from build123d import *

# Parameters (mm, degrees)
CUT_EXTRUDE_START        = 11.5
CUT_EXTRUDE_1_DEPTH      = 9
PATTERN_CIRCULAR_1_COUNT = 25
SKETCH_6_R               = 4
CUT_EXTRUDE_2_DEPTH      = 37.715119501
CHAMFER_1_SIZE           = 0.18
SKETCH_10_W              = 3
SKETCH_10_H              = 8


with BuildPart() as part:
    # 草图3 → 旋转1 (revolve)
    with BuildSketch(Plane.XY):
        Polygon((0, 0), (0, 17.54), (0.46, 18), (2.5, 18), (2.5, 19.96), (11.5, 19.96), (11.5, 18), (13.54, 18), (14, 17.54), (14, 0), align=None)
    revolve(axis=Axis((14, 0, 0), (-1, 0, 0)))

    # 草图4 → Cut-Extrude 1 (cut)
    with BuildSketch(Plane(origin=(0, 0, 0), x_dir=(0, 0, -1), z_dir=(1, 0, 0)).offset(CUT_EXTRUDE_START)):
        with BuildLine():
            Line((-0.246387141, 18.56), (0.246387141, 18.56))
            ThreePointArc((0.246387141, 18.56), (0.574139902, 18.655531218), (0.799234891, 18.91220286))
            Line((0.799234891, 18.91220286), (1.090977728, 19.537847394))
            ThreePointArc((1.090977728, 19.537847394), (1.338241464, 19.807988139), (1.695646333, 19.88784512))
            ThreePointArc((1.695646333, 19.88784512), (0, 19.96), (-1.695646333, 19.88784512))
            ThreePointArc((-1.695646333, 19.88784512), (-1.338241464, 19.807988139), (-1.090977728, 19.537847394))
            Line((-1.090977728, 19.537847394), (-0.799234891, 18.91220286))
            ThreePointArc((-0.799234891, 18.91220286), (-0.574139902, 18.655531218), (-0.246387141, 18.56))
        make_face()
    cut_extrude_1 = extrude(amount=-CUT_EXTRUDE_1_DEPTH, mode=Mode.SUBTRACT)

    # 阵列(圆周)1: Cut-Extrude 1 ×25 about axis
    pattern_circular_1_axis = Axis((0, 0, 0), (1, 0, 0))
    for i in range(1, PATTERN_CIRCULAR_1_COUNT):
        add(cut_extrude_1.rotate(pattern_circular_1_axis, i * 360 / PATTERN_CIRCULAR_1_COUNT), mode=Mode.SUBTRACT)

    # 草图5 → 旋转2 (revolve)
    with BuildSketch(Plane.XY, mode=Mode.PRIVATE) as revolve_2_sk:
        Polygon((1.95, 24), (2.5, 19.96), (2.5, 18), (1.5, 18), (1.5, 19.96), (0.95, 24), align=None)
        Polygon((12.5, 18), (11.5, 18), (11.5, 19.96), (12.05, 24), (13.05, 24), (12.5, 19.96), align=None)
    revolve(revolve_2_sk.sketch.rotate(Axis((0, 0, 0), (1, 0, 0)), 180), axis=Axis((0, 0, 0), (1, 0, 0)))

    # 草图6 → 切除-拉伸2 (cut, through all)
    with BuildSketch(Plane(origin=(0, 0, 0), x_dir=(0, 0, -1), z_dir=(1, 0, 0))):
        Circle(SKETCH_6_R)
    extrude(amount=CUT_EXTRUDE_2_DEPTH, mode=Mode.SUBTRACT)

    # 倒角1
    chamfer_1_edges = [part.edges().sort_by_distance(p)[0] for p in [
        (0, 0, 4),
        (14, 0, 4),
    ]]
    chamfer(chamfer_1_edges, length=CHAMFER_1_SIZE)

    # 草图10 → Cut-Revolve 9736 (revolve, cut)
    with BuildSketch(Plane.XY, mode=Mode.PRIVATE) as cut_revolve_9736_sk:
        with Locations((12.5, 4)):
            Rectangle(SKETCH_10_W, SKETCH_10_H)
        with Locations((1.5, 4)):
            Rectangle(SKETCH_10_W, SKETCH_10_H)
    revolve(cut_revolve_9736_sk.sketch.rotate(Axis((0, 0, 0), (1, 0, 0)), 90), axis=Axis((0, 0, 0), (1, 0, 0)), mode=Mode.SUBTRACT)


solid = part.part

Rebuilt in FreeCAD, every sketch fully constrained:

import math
import FreeCAD as App
import Part
import Sketcher
Q = App.Units.Quantity


def edges_at(feature, points):
    """Names of the edges that pass closest to the given points."""
    edges = feature.Shape.Edges
    near = lambda p: min(range(len(edges)), key=lambda i: edges[i].distToShape(Part.Vertex(*p))[0])
    return sorted({f"Edge{near(p) + 1}" for p in points})

doc = App.newDocument("Part")
params = doc.addObject("Spreadsheet::Sheet", "Params")
for row, (alias, value) in enumerate([
    ("sketch1_width", "14 mm"),
    ("sketch1_width2", "9 mm"),
    ("sketch1_width3", "2.04 mm"),
    ("sketch1_height", "1.96 mm"),
    ("revolution_angle", "360 deg"),
    ("sketch2_radius", "0.61 mm"),
    ("sketch2_radius2", "19.96 mm"),
    ("pocket1_length", "9 mm"),
    ("sketch3_width", "1 mm"),
    ("sketch3_height", "1.96 mm"),
    ("revolution2_angle", "360 deg"),
    ("sketch4_diameter", "8 mm"),
    ("chamfer_size", "0.18 mm"),
    ("sketch5_width", "3 mm"),
    ("sketch5_height", "8 mm"),
    ("groove_angle", "360 deg"),
], start=1):
    params.set(f"A{row}", alias)
    params.set(f"B{row}", "=" + value)
    params.setAlias(f"B{row}", alias)

body = doc.addObject("PartDesign::Body", "Body")

sketch1 = doc.addObject("Sketcher::SketchObject", "Sketch")
body.addObject(sketch1)
sketch1.AttachmentSupport = (doc.XY_Plane, [""])
sketch1.MapMode = "FlatFace"
sketch1.addGeometry([
    Part.LineSegment(App.Vector(0, 17.5, 0), App.Vector(0, 0, 0)),
    Part.LineSegment(App.Vector(0, 0, 0), App.Vector(14, 0, 0)),
    Part.LineSegment(App.Vector(14, 0, 0), App.Vector(14, 17.5, 0)),
    Part.LineSegment(App.Vector(14, 17.5, 0), App.Vector(13.5, 18, 0)),
    Part.LineSegment(App.Vector(13.5, 18, 0), App.Vector(11.5, 18, 0)),
    Part.LineSegment(App.Vector(11.5, 18, 0), App.Vector(11.5, 20, 0)),
    Part.LineSegment(App.Vector(11.5, 20, 0), App.Vector(2.5, 20, 0)),
    Part.LineSegment(App.Vector(2.5, 20, 0), App.Vector(2.5, 18, 0)),
    Part.LineSegment(App.Vector(2.5, 18, 0), App.Vector(0.5, 18, 0)),
    Part.LineSegment(App.Vector(0.5, 18, 0), App.Vector(0, 17.5, 0)),
], False)
sketch1.addConstraint([
    Sketcher.Constraint("Coincident", 0, 2, 1, 1),
    Sketcher.Constraint("Coincident", 1, 2, 2, 1),
    Sketcher.Constraint("Coincident", 2, 2, 3, 1),
    Sketcher.Constraint("Coincident", 3, 2, 4, 1),
    Sketcher.Constraint("Coincident", 4, 2, 5, 1),
    Sketcher.Constraint("Coincident", 5, 2, 6, 1),
    Sketcher.Constraint("Coincident", 6, 2, 7, 1),
    Sketcher.Constraint("Coincident", 7, 2, 8, 1),
    Sketcher.Constraint("Coincident", 8, 2, 9, 1),
    Sketcher.Constraint("Coincident", 9, 2, 0, 1),
    Sketcher.Constraint("Vertical", 0),
    Sketcher.Constraint("Horizontal", 1),
    Sketcher.Constraint("Vertical", 2),
    Sketcher.Constraint("Horizontal", 4),
    Sketcher.Constraint("Vertical", 5),
    Sketcher.Constraint("Horizontal", 6),
    Sketcher.Constraint("Vertical", 7),
    Sketcher.Constraint("Horizontal", 8),
    Sketcher.Constraint("Coincident", 0, 2, -1, 1),
    Sketcher.Constraint("Perpendicular", 3, 9),
    Sketcher.Constraint("Horizontal", 4, 2, 7, 2),
    Sketcher.Constraint("Horizontal", 2, 2, 9, 2),
    Sketcher.Constraint("Equal", 4, 8),
    Sketcher.Constraint("Equal", 3, 9),
    Sketcher.Constraint("DistanceX", 1, 1, 1, 2, Q("14 mm")),
    Sketcher.Constraint("DistanceX", 6, 2, 6, 1, Q("9 mm")),
    Sketcher.Constraint("DistanceY", -1, 1, 3, 2, Q("18 mm")),
    Sketcher.Constraint("DistanceX", 4, 2, 4, 1, Q("2.04 mm")),
    Sketcher.Constraint("DistanceY", 5, 1, 5, 2, Q("1.96 mm")),
])
sketch1.setExpression("Constraints[24]", "Params.sketch1_width")
sketch1.setExpression("Constraints[25]", "Params.sketch1_width2")
sketch1.setExpression("Constraints[27]", "Params.sketch1_width3")
sketch1.setExpression("Constraints[28]", "Params.sketch1_height")
revolution = doc.addObject("PartDesign::Revolution", "Revolution")
body.addObject(revolution)
revolution.Profile = sketch1
revolution.ReferenceAxis = (sketch1, ["H_Axis"])
revolution.setExpression("Angle", "Params.revolution_angle")

sketch2 = doc.addObject("Sketcher::SketchObject", "Sketch001")
body.addObject(sketch2)
sketch2.AttachmentSupport = (doc.YZ_Plane, [""])
sketch2.MapMode = "FlatFace"
sketch2.AttachmentOffset = App.Placement(App.Vector(0, 0, 11.5), App.Rotation())
sketch2.addGeometry([
    Part.LineSegment(App.Vector(18.56, 0.25, 0), App.Vector(18.56, -0.25, 0)),
    Part.ArcOfCircle(Part.Circle(App.Vector(19.17, -0.25, 0), App.Vector(0, 0, 1), 0.61), math.radians(180), math.radians(245)),
    Part.LineSegment(App.Vector(18.91, -0.8, 0), App.Vector(19.54, -1.09, 0)),
    Part.ArcOfCircle(Part.Circle(App.Vector(19.28, -1.64, 0), App.Vector(0, 0, 1), 0.61), math.radians(-5), math.radians(65)),
    Part.ArcOfCircle(Part.Circle(App.Vector(0, 0, 0), App.Vector(0, 0, 1), 19.96), math.radians(-4.87), math.radians(4.87)),
    Part.ArcOfCircle(Part.Circle(App.Vector(19.28, 1.64, 0), App.Vector(0, 0, 1), 0.61), math.radians(-65), math.radians(5)),
    Part.LineSegment(App.Vector(19.54, 1.09, 0), App.Vector(18.91, 0.8, 0)),
    Part.ArcOfCircle(Part.Circle(App.Vector(19.17, 0.25, 0), App.Vector(0, 0, 1), 0.61), math.radians(115), math.radians(180)),
], False)
sketch2.addConstraint([
    Sketcher.Constraint("Tangent", 0, 2, 1, 1),
    Sketcher.Constraint("Tangent", 1, 2, 2, 1),
    Sketcher.Constraint("Tangent", 2, 2, 3, 2),
    Sketcher.Constraint("Tangent", 3, 1, 4, 1),
    Sketcher.Constraint("Tangent", 4, 2, 5, 2),
    Sketcher.Constraint("Tangent", 5, 1, 6, 1),
    Sketcher.Constraint("Tangent", 6, 2, 7, 1),
    Sketcher.Constraint("Tangent", 7, 2, 0, 1),
    Sketcher.Constraint("Vertical", 0),
    Sketcher.Constraint("Coincident", 4, 3, -1, 1),
    Sketcher.Constraint("Equal", 1, 3),
    Sketcher.Constraint("Equal", 3, 5),
    Sketcher.Constraint("Equal", 5, 7),
    Sketcher.Constraint("Symmetric", 2, 2, 5, 1, -1),
    Sketcher.Constraint("Angle", 2, Q("-25 deg")),
    Sketcher.Constraint("Radius", 1, Q("0.61 mm")),
    Sketcher.Constraint("Radius", 4, Q("19.96 mm")),
    Sketcher.Constraint("DistanceX", -1, 1, 1, 3, Q("19.17 mm")),
    Sketcher.Constraint("DistanceY", 0, 2, 0, 1, Q("0.492774 mm")),
])
sketch2.setExpression("Constraints[15]", "Params.sketch2_radius")
sketch2.setExpression("Constraints[16]", "Params.sketch2_radius2")
pocket1 = doc.addObject("PartDesign::Pocket", "Pocket")
body.addObject(pocket1)
pocket1.Profile = sketch2
pocket1.setExpression("Length", "Params.pocket1_length")
doc.recompute()

polarpattern = doc.addObject("PartDesign::PolarPattern", "PolarPattern")
body.addObject(polarpattern)
polarpattern.Originals = [pocket1]
polarpattern.Axis = (doc.X_Axis, [""])
polarpattern.Angle = 360
polarpattern.Occurrences = 25
body.Tip = polarpattern

sketch3 = doc.addObject("Sketcher::SketchObject", "Sketch002")
body.addObject(sketch3)
sketch3.AttachmentSupport = (doc.XY_Plane, [""])
sketch3.MapMode = "FlatFace"
sketch3.addGeometry([
    Part.LineSegment(App.Vector(2.5, 20, 0), App.Vector(1.9, 24, 0)),
    Part.LineSegment(App.Vector(1.9, 24, 0), App.Vector(0.9, 24, 0)),
    Part.LineSegment(App.Vector(0.9, 24, 0), App.Vector(1.5, 20, 0)),
    Part.LineSegment(App.Vector(1.5, 20, 0), App.Vector(1.5, 18, 0)),
    Part.LineSegment(App.Vector(1.5, 18, 0), App.Vector(2.5, 18, 0)),
    Part.LineSegment(App.Vector(2.5, 18, 0), App.Vector(2.5, 20, 0)),
    Part.LineSegment(App.Vector(11.5, 18, 0), App.Vector(12.5, 18, 0)),
    Part.LineSegment(App.Vector(12.5, 18, 0), App.Vector(12.5, 20, 0)),
    Part.LineSegment(App.Vector(12.5, 20, 0), App.Vector(13.1, 24, 0)),
    Part.LineSegment(App.Vector(13.1, 24, 0), App.Vector(12.1, 24, 0)),
    Part.LineSegment(App.Vector(12.1, 24, 0), App.Vector(11.5, 20, 0)),
    Part.LineSegment(App.Vector(11.5, 20, 0), App.Vector(11.5, 18, 0)),
], False)
sketch3.addConstraint([
    Sketcher.Constraint("Coincident", 0, 2, 1, 1),
    Sketcher.Constraint("Coincident", 1, 2, 2, 1),
    Sketcher.Constraint("Coincident", 2, 2, 3, 1),
    Sketcher.Constraint("Coincident", 3, 2, 4, 1),
    Sketcher.Constraint("Coincident", 4, 2, 5, 1),
    Sketcher.Constraint("Coincident", 5, 2, 0, 1),
    Sketcher.Constraint("Coincident", 6, 2, 7, 1),
    Sketcher.Constraint("Coincident", 7, 2, 8, 1),
    Sketcher.Constraint("Coincident", 8, 2, 9, 1),
    Sketcher.Constraint("Coincident", 9, 2, 10, 1),
    Sketcher.Constraint("Coincident", 10, 2, 11, 1),
    Sketcher.Constraint("Coincident", 11, 2, 6, 1),
    Sketcher.Constraint("Horizontal", 1),
    Sketcher.Constraint("Vertical", 3),
    Sketcher.Constraint("Horizontal", 4),
    Sketcher.Constraint("Vertical", 5),
    Sketcher.Constraint("Horizontal", 6),
    Sketcher.Constraint("Vertical", 7),
    Sketcher.Constraint("Horizontal", 9),
    Sketcher.Constraint("Vertical", 11),
    Sketcher.Constraint("Parallel", 0, 2),
    Sketcher.Constraint("Parallel", 8, 10),
    Sketcher.Constraint("Horizontal", 2, 2, 5, 2),
    Sketcher.Constraint("Horizontal", 4, 2, 6, 2),
    Sketcher.Constraint("Horizontal", 5, 2, 7, 2),
    Sketcher.Constraint("Horizontal", 1, 2, 8, 2),
    Sketcher.Constraint("Horizontal", 7, 2, 10, 2),
    Sketcher.Constraint("Equal", 4, 6),
    Sketcher.Constraint("Equal", 2, 8),
    Sketcher.Constraint("DistanceX", 1, 2, 1, 1, Q("1 mm")),
    Sketcher.Constraint("DistanceY", -1, 1, 0, 2, Q("24 mm")),
    Sketcher.Constraint("DistanceY", -1, 1, 3, 2, Q("18 mm")),
    Sketcher.Constraint("DistanceX", 4, 2, 6, 2, Q("10 mm")),
    Sketcher.Constraint("DistanceY", 3, 2, 3, 1, Q("1.96 mm")),
    Sketcher.Constraint("DistanceX", -1, 1, 2, 2, Q("1.5 mm")),
    Sketcher.Constraint("DistanceX", 0, 2, 8, 2, Q("11.1 mm")),
])
sketch3.setExpression("Constraints[29]", "Params.sketch3_width")
sketch3.setExpression("Constraints[33]", "Params.sketch3_height")
revolution2 = doc.addObject("PartDesign::Revolution", "Revolution001")
body.addObject(revolution2)
revolution2.Profile = sketch3
revolution2.ReferenceAxis = (sketch3, ["H_Axis"])
revolution2.setExpression("Angle", "Params.revolution2_angle")

sketch4 = doc.addObject("Sketcher::SketchObject", "Sketch003")
body.addObject(sketch4)
sketch4.AttachmentSupport = (doc.YZ_Plane, [""])
sketch4.MapMode = "FlatFace"
sketch4.addGeometry(Part.Circle(App.Vector(0, 0, 0), App.Vector(0, 0, 1), 4), False)
sketch4.addConstraint([
    Sketcher.Constraint("Coincident", 0, 3, -1, 1),
    Sketcher.Constraint("Diameter", 0, Q("8 mm")),
])
sketch4.setExpression("Constraints[1]", "Params.sketch4_diameter")
pocket2 = doc.addObject("PartDesign::Pocket", "Pocket001")
body.addObject(pocket2)
pocket2.Profile = sketch4
pocket2.Type = "ThroughAll"
pocket2.Reversed = True
doc.recompute()

chamfer = doc.addObject("PartDesign::Chamfer", "Chamfer")
body.addObject(chamfer)
chamfer.Base = (pocket2, edges_at(pocket2, [(0, 0, 4), (14, 0, 4)]))
chamfer.setExpression("Size", "Params.chamfer_size")

sketch5 = doc.addObject("Sketcher::SketchObject", "Sketch004")
body.addObject(sketch5)
sketch5.AttachmentSupport = (doc.XY_Plane, [""])
sketch5.MapMode = "FlatFace"
sketch5.addGeometry([
    Part.LineSegment(App.Vector(11, 8, 0), App.Vector(11, 0, 0)),
    Part.LineSegment(App.Vector(11, 0, 0), App.Vector(14, 0, 0)),
    Part.LineSegment(App.Vector(14, 0, 0), App.Vector(14, 8, 0)),
    Part.LineSegment(App.Vector(14, 8, 0), App.Vector(11, 8, 0)),
    Part.LineSegment(App.Vector(0, 8, 0), App.Vector(0, 0, 0)),
    Part.LineSegment(App.Vector(0, 0, 0), App.Vector(3, 0, 0)),
    Part.LineSegment(App.Vector(3, 0, 0), App.Vector(3, 8, 0)),
    Part.LineSegment(App.Vector(3, 8, 0), App.Vector(0, 8, 0)),
], False)
sketch5.addConstraint([
    Sketcher.Constraint("Coincident", 0, 2, 1, 1),
    Sketcher.Constraint("Coincident", 1, 2, 2, 1),
    Sketcher.Constraint("Coincident", 2, 2, 3, 1),
    Sketcher.Constraint("Coincident", 3, 2, 0, 1),
    Sketcher.Constraint("Coincident", 4, 2, 5, 1),
    Sketcher.Constraint("Coincident", 5, 2, 6, 1),
    Sketcher.Constraint("Coincident", 6, 2, 7, 1),
    Sketcher.Constraint("Coincident", 7, 2, 4, 1),
    Sketcher.Constraint("Vertical", 0),
    Sketcher.Constraint("Horizontal", 1),
    Sketcher.Constraint("Vertical", 2),
    Sketcher.Constraint("Horizontal", 3),
    Sketcher.Constraint("Vertical", 4),
    Sketcher.Constraint("Horizontal", 5),
    Sketcher.Constraint("Vertical", 6),
    Sketcher.Constraint("Horizontal", 7),
    Sketcher.Constraint("Coincident", 4, 2, -1, 1),
    Sketcher.Constraint("PointOnObject", 0, 2, -1),
    Sketcher.Constraint("Horizontal", 3, 2, 6, 2),
    Sketcher.Constraint("Equal", 3, 5),
    Sketcher.Constraint("DistanceX", 1, 1, 1, 2, Q("3 mm")),
    Sketcher.Constraint("DistanceY", 0, 2, 0, 1, Q("8 mm")),
    Sketcher.Constraint("DistanceX", -1, 1, 0, 2, Q("11 mm")),
])
sketch5.setExpression("Constraints[20]", "Params.sketch5_width")
sketch5.setExpression("Constraints[21]", "Params.sketch5_height")
groove = doc.addObject("PartDesign::Groove", "Groove")
body.addObject(groove)
groove.Profile = sketch5
groove.ReferenceAxis = (sketch5, ["H_Axis"])
groove.setExpression("Angle", "Params.groove_angle")

doc.recompute()
